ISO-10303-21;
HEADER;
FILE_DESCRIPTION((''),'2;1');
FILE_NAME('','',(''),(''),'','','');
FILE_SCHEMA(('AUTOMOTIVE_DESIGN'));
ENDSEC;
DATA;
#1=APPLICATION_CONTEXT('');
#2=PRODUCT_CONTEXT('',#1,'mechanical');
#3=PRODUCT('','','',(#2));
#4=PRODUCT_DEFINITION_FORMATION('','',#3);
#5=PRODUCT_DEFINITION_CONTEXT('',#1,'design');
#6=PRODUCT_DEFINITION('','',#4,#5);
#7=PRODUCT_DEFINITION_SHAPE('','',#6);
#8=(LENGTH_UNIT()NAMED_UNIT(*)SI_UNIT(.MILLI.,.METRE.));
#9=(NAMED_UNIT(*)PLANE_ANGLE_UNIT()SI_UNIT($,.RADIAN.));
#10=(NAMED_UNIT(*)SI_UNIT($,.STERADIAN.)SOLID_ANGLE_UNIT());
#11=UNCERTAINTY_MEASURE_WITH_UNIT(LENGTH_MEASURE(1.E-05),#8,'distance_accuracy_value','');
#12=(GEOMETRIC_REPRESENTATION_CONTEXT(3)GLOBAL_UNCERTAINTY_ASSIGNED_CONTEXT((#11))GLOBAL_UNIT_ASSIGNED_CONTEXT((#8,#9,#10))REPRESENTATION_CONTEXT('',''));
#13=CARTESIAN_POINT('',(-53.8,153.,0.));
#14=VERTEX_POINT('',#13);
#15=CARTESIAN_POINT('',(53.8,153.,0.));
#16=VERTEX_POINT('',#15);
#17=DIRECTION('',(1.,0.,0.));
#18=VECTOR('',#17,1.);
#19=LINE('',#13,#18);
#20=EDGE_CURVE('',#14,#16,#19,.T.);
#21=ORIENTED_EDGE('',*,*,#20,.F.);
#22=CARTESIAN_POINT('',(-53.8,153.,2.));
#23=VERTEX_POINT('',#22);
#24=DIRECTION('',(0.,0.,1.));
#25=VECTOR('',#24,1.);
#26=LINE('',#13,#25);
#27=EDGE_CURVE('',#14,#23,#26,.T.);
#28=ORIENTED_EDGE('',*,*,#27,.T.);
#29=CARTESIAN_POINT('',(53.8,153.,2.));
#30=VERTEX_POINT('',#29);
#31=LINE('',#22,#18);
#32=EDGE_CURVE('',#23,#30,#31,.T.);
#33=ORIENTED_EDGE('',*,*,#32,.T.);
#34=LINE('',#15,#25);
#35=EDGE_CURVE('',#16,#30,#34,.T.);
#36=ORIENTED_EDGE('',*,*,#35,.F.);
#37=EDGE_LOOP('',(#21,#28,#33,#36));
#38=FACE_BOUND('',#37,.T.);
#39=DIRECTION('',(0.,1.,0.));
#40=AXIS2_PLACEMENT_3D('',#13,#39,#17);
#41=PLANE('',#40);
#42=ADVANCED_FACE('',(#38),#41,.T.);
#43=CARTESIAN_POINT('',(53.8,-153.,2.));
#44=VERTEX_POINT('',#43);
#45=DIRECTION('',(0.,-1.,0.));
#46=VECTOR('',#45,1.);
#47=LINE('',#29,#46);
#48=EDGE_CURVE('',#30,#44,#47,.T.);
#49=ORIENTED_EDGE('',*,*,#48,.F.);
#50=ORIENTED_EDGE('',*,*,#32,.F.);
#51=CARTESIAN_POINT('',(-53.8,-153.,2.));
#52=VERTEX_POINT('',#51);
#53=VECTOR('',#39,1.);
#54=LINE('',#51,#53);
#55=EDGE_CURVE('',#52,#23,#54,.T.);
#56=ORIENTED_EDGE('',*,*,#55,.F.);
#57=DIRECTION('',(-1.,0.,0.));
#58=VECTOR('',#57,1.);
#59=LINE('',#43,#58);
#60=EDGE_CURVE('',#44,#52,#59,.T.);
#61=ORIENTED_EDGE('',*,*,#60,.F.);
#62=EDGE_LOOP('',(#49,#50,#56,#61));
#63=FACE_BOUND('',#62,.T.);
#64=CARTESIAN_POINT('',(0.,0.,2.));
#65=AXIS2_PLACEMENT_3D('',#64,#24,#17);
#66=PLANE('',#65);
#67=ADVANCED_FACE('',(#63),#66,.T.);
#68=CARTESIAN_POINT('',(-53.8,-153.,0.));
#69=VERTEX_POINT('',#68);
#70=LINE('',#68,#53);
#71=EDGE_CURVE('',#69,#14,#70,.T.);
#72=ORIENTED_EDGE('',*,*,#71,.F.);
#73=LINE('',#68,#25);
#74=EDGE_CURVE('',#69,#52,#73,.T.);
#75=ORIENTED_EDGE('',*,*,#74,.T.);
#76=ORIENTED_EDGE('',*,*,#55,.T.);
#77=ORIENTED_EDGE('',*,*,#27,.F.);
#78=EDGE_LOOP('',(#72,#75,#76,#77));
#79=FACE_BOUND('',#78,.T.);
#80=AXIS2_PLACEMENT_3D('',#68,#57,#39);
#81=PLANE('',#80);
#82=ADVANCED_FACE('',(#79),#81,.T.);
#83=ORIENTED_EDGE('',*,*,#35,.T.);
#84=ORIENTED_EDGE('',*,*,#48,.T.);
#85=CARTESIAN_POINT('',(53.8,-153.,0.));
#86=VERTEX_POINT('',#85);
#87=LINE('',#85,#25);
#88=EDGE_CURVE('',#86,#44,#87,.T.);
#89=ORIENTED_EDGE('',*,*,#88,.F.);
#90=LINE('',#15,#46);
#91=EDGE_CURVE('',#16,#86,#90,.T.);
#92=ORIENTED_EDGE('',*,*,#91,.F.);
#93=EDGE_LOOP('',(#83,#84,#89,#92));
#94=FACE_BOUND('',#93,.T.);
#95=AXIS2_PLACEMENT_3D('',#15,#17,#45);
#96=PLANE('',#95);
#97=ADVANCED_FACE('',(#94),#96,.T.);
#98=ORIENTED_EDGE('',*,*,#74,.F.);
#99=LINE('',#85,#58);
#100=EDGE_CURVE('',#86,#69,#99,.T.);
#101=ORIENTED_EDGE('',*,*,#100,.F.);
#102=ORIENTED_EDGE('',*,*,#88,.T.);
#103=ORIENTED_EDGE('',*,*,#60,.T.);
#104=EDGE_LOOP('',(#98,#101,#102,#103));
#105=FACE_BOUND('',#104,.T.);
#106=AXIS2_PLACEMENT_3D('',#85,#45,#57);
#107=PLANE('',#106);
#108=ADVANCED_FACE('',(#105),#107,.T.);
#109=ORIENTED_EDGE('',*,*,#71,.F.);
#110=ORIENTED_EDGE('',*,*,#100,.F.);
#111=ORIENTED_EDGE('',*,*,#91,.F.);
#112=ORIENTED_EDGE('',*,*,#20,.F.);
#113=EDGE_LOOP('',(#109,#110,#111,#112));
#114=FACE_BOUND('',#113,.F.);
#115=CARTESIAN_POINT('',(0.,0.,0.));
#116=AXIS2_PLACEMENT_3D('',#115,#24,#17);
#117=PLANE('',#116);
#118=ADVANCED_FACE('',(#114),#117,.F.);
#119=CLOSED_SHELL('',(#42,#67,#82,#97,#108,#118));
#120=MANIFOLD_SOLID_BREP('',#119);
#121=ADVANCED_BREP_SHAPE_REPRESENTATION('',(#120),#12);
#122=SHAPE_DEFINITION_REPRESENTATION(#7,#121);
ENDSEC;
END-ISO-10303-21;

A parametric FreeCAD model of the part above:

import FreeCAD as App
import Part
import Sketcher
Q = App.Units.Quantity

doc = App.newDocument("Part")
body = doc.addObject("PartDesign::Body", "Body")

sketch1 = body.newObject("Sketcher::SketchObject", "Sketch")
sketch1.AttachmentSupport = (doc.getObject("XY_Plane"), [""])
sketch1.MapMode = "FlatFace"
sketch1.addGeometry([
    Part.LineSegment(App.Vector(54, 153, 0), App.Vector(-54, 153, 0)),
    Part.LineSegment(App.Vector(-54, 153, 0), App.Vector(-54, -153, 0)),
    Part.LineSegment(App.Vector(-54, -153, 0), App.Vector(54, -153, 0)),
    Part.LineSegment(App.Vector(54, -153, 0), App.Vector(54, 153, 0)),
], False)
sketch1.addConstraint([
    Sketcher.Constraint("Coincident", 0, 2, 1, 1),
    Sketcher.Constraint("Coincident", 1, 2, 2, 1),
    Sketcher.Constraint("Coincident", 2, 2, 3, 1),
    Sketcher.Constraint("Coincident", 3, 2, 0, 1),
    Sketcher.Constraint("Horizontal", 0),
    Sketcher.Constraint("Vertical", 1),
    Sketcher.Constraint("Horizontal", 2),
    Sketcher.Constraint("Vertical", 3),
    Sketcher.Constraint("Symmetric", 0, 2, 2, 2, -1, 1),
    Sketcher.Constraint("DistanceY", 1, 2, 1, 1, Q("306 mm")),
    Sketcher.Constraint("DistanceX", 0, 2, 0, 1, Q("107.6 mm")),
])
pad1 = body.newObject("PartDesign::Pad", "Pad")
pad1.Profile = sketch1
pad1.Length = 2

doc.recompute()
